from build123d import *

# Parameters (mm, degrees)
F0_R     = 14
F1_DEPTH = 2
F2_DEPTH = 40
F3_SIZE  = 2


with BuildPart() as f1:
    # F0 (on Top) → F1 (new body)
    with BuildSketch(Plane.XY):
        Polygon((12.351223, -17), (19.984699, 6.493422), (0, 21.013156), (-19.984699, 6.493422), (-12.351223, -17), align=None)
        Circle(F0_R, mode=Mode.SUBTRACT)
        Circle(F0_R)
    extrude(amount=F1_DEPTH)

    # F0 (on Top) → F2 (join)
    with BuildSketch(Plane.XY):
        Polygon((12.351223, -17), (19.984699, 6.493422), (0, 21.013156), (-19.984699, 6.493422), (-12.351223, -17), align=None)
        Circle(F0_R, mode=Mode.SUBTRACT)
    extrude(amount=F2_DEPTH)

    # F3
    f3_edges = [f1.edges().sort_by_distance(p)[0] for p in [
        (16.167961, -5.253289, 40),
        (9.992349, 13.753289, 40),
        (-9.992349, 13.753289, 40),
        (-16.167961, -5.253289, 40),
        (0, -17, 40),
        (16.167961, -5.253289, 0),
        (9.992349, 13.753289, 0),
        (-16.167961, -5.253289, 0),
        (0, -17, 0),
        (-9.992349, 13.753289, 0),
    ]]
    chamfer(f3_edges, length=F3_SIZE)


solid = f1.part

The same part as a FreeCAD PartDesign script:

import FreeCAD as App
import Part
import Sketcher
from FreeCAD import Vector
Q = App.Units.Quantity


def edges_at(feature, points):
    """Names of the edges that pass closest to the given points."""
    edges = feature.Shape.Edges
    near = lambda p: min(range(len(edges)), key=lambda i: edges[i].distToShape(Part.Vertex(*p))[0])
    return sorted({f"Edge{near(p) + 1}" for p in points})


def add_polygon(sketch, points):
    """Adds a closed chain of lines whose ends are joined by coincident constraints."""
    first, n = sketch.GeometryCount, len(points)
    for a, b in zip(points, points[1:] + points[:1]):
        sketch.addGeometry(Part.LineSegment(App.Vector(*a, 0), App.Vector(*b, 0)), False)
    for i in range(n):
        sketch.addConstraint(Sketcher.Constraint("Coincident", first + i, 2, first + (i + 1) % n, 1))

doc = App.newDocument("Part")
body = doc.addObject("PartDesign::Body", "Body")

sketch1 = body.newObject("Sketcher::SketchObject", "Sketch")
sketch1.AttachmentSupport = (doc.getObject("XY_Plane"), [""])
sketch1.MapMode = "FlatFace"
add_polygon(sketch1, [(12, -17), (20, 6), (0, 21), (-20, 6), (-12, -17)])
sketch1.addConstraint([
    Sketcher.Constraint("Horizontal", 4),
    Sketcher.Constraint("Symmetric", 0, 2, 2, 2, -2),
    Sketcher.Constraint("PointOnObject", 1, 2, -2),
    Sketcher.Constraint("Equal", 0, 1),
    Sketcher.Constraint("Equal", 2, 3),
    Sketcher.Constraint("Angle", 0, Q("71.999999 deg")),
    Sketcher.Constraint("Angle", 1, Q("143.999999 deg")),
    Sketcher.Constraint("DistanceY", 3, 2, -1, 1, Q("17 mm")),
    Sketcher.Constraint("DistanceX", -1, 1, 0, 2, Q("19.984699 mm")),
])
pad1 = body.newObject("PartDesign::Pad", "Pad")
pad1.Profile = sketch1
pad1.Length = 2

sketch2 = body.newObject("Sketcher::SketchObject", "Sketch001")
sketch2.AttachmentSupport = (doc.getObject("XY_Plane"), [""])
sketch2.MapMode = "FlatFace"
add_polygon(sketch2, [(12, -17), (20, 6), (0, 21), (-20, 6), (-12, -17)])
sketch2.addGeometry(Part.Circle(Vector(0, 0, 0), Vector(0, 0, 1), 14), False)
sketch2.addConstraint([
    Sketcher.Constraint("Horizontal", 4),
    Sketcher.Constraint("Coincident", 5, 3, -1, 1),
    Sketcher.Constraint("Symmetric", 0, 2, 2, 2, -2),
    Sketcher.Constraint("PointOnObject", 1, 2, -2),
    Sketcher.Constraint("Equal", 0, 1),
    Sketcher.Constraint("Equal", 2, 3),
    Sketcher.Constraint("Diameter", 5, Q("28 mm")),
    Sketcher.Constraint("Angle", 0, Q("71.999999 deg")),
    Sketcher.Constraint("Angle", 1, Q("143.999999 deg")),
    Sketcher.Constraint("DistanceY", 3, 2, -1, 1, Q("17 mm")),
    Sketcher.Constraint("DistanceX", -1, 1, 0, 2, Q("19.984699 mm")),
])
pad2 = body.newObject("PartDesign::Pad", "Pad001")
pad2.Profile = sketch2
pad2.Length = 40
doc.recompute()

chamfer = body.newObject("PartDesign::Chamfer", "Chamfer")
chamfer.Base = (pad2, edges_at(pad2, [
    (16.168, -5.253, 40),
    (9.992, 13.753, 40),
    (-9.992, 13.753, 40),
    (-16.168, -5.253, 40),
    (0, -17, 40),
    (16.168, -5.253, 0),
    (9.992, 13.753, 0),
    (-16.168, -5.253, 0),
    (0, -17, 0),
    (-9.992, 13.753, 0),
]))
chamfer.Size = 2

doc.recompute()
